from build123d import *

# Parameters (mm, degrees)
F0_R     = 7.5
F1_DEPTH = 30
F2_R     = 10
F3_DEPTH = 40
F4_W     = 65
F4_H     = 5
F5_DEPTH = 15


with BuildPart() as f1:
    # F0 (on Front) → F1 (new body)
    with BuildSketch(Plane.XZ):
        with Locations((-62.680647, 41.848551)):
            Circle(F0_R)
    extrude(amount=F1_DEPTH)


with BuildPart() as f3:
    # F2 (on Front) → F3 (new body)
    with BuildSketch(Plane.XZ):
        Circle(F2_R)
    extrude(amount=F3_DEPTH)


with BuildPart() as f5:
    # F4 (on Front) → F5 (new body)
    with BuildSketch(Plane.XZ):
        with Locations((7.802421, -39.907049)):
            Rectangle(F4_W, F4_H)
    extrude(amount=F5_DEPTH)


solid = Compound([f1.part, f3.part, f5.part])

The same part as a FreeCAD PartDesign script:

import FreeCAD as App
import Part
import Sketcher

V = App.Vector
Q = App.Units.Quantity

doc = App.newDocument("Part")
body = doc.addObject("PartDesign::Body", "Body")

# Sketch on XZ plane
sketch1 = body.newObject("Sketcher::SketchObject", "Sketch")
sketch1.AttachmentSupport = (doc.getObject("XZ_Plane"), [""])
sketch1.MapMode = "FlatFace"
sketch1.addGeometry(Part.Circle(V(-62.680647, 41.848551, 0), V(0, 0, 1), 7.5), False)
sketch1.addConstraint([
    Sketcher.Constraint("Diameter", 0, Q("15 mm")),
    Sketcher.Constraint("DistanceY", -1, 1, 0, 3, Q("41.848551 mm")),
    Sketcher.Constraint("DistanceX", 0, 3, -1, 1, Q("62.680647 mm")),
])
pad1 = body.newObject("PartDesign::Pad", "Pad")
pad1.Profile = sketch1
pad1.Length = 30
body2 = doc.addObject("PartDesign::Body", "Body001")

# Sketch on XZ plane
sketch2 = body2.newObject("Sketcher::SketchObject", "Sketch001")
sketch2.AttachmentSupport = (doc.getObject("XZ_Plane001"), [""])
sketch2.MapMode = "FlatFace"
sketch2.addGeometry(Part.Circle(V(0, 0, 0), V(0, 0, 1), 10), False)
sketch2.addConstraint([
    Sketcher.Constraint("Coincident", 0, 3, -1, 1),
    Sketcher.Constraint("Diameter", 0, Q("20 mm")),
])
pad2 = body2.newObject("PartDesign::Pad", "Pad001")
pad2.Profile = sketch2
pad2.Length = 40
body3 = doc.addObject("PartDesign::Body", "Body002")

# Sketch on XZ plane
sketch3 = body3.newObject("Sketcher::SketchObject", "Sketch002")
sketch3.AttachmentSupport = (doc.getObject("XZ_Plane002"), [""])
sketch3.MapMode = "FlatFace"
sketch3.addGeometry([
    Part.LineSegment(V(-24.697579, -37.407049, 0), V(-24.697579, -42.407049, 0)),
    Part.LineSegment(V(-24.697579, -42.407049, 0), V(40.302421, -42.407049, 0)),
    Part.LineSegment(V(40.302421, -42.407049, 0), V(40.302421, -37.407049, 0)),
    Part.LineSegment(V(40.302421, -37.407049, 0), V(-24.697579, -37.407049, 0)),
], False)
sketch3.addConstraint([
    Sketcher.Constraint("Coincident", 0, 2, 1, 1),
    Sketcher.Constraint("Coincident", 1, 2, 2, 1),
    Sketcher.Constraint("Coincident", 2, 2, 3, 1),
    Sketcher.Constraint("Coincident", 3, 2, 0, 1),
    Sketcher.Constraint("Vertical", 0),
    Sketcher.Constraint("Horizontal", 1),
    Sketcher.Constraint("Vertical", 2),
    Sketcher.Constraint("Horizontal", 3),
    Sketcher.Constraint("DistanceX", 1, 1, 1, 2, Q("65 mm")),
    Sketcher.Constraint("DistanceY", 0, 2, 0, 1, Q("5 mm")),
    Sketcher.Constraint("DistanceX", 0, 2, -1, 1, Q("24.697579 mm")),
    Sketcher.Constraint("DistanceY", 0, 2, -1, 1, Q("42.407049 mm")),
])
pad3 = body3.newObject("PartDesign::Pad", "Pad002")
pad3.Profile = sketch3
pad3.Length = 15

doc.recompute()
